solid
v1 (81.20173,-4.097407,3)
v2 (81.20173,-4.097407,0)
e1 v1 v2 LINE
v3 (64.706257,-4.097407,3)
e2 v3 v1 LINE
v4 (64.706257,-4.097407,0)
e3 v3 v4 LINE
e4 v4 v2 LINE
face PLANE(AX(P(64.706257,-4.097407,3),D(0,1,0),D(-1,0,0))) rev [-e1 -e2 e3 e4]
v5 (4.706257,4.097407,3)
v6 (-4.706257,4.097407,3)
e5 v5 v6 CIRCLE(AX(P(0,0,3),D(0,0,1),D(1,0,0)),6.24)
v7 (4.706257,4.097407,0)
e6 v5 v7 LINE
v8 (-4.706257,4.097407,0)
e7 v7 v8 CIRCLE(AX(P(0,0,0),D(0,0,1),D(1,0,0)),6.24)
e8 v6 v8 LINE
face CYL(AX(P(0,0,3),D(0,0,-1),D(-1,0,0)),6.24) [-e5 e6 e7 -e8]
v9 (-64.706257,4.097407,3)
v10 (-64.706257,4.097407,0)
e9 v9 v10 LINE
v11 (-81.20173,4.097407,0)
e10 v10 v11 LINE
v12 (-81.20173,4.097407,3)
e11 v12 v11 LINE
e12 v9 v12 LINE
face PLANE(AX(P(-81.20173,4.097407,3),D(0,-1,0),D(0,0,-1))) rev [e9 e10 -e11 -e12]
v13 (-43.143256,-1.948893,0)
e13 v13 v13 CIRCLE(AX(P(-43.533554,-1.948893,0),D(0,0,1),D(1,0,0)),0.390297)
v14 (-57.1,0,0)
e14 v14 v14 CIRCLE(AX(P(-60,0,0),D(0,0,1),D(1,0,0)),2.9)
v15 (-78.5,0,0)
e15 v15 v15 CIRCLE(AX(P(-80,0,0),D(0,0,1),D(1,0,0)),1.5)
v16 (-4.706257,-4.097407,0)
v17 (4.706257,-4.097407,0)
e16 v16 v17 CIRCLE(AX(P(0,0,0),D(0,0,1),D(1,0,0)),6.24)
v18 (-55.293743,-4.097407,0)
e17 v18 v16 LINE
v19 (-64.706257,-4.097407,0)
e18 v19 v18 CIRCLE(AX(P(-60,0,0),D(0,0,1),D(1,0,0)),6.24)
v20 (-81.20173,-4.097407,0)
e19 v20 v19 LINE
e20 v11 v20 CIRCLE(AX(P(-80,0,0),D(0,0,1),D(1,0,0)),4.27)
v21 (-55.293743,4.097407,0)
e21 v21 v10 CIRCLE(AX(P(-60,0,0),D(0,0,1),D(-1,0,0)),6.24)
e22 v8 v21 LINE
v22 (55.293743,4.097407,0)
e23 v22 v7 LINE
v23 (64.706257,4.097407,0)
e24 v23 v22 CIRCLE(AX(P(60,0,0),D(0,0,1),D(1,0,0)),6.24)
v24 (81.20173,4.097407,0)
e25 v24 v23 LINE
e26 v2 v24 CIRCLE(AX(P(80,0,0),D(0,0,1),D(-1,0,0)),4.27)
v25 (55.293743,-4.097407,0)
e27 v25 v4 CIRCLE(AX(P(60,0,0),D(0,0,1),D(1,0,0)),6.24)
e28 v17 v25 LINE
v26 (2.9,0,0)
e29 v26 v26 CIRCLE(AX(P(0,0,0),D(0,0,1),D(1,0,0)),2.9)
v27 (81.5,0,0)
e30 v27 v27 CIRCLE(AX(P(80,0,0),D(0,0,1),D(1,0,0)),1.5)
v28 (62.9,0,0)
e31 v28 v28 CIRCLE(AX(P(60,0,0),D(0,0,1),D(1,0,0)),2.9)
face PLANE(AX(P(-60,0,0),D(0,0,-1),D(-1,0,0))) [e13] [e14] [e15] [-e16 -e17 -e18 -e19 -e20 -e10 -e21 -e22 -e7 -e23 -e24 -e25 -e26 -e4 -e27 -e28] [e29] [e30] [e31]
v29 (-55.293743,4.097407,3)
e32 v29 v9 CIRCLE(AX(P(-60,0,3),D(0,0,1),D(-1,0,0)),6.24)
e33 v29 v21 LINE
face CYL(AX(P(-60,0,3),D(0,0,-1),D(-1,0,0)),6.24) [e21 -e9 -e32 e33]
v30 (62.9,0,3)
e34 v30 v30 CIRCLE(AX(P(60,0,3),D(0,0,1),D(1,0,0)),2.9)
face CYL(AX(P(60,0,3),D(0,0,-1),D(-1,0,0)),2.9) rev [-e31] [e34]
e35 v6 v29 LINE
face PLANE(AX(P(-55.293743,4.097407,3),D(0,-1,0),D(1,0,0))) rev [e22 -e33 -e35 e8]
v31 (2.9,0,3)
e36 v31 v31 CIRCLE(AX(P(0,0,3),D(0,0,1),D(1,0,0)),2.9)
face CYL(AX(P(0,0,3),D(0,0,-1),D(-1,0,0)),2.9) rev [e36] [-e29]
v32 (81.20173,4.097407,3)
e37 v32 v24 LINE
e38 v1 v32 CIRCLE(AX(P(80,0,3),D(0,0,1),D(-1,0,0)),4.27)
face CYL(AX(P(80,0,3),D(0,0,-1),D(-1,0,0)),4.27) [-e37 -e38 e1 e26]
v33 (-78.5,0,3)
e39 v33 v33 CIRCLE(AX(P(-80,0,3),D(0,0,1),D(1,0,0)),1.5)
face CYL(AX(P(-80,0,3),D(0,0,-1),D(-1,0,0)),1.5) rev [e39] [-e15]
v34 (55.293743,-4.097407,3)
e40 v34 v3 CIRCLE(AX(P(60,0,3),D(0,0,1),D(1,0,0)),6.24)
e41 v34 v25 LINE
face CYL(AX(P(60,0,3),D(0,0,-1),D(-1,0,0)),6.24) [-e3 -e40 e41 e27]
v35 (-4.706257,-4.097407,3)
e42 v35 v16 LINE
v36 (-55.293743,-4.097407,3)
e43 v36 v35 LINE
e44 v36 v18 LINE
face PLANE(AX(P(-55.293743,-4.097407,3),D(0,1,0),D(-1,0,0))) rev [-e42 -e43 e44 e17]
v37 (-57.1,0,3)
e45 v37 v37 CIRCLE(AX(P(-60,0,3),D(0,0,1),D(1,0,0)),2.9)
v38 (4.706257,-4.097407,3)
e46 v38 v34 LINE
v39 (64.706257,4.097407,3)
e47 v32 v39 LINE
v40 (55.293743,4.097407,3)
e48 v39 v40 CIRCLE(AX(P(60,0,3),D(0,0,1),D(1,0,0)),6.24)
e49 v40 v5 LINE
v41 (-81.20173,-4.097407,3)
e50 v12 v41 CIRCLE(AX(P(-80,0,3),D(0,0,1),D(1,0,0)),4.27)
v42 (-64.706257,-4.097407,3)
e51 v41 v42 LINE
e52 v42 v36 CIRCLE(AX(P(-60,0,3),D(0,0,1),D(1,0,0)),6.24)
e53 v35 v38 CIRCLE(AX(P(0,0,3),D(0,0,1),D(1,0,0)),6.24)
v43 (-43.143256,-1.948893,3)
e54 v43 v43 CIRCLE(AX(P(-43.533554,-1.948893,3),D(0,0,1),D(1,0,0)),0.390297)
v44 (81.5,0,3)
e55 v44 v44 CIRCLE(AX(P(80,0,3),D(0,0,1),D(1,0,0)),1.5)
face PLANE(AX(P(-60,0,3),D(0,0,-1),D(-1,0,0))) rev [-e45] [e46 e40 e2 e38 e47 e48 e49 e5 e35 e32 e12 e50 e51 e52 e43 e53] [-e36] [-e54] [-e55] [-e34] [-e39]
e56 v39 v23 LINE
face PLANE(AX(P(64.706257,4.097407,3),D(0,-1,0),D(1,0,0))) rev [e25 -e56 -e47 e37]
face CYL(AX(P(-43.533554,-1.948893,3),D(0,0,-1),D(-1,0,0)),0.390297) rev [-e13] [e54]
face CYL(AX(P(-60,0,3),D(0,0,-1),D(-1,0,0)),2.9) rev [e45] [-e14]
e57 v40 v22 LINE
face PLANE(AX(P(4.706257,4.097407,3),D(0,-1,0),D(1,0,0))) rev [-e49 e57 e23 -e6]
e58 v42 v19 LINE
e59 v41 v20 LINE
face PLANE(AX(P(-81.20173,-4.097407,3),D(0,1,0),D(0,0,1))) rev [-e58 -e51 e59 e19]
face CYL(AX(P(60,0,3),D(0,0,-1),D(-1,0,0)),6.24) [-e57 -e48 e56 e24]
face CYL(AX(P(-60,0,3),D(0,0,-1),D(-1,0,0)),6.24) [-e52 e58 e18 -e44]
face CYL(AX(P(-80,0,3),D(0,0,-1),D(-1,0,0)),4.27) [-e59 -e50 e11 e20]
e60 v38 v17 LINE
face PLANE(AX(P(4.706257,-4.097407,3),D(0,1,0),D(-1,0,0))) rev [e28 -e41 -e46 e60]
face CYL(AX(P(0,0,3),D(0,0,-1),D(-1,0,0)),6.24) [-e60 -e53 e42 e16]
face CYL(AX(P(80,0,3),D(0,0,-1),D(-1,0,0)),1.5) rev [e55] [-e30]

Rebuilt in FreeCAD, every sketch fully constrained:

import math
import FreeCAD as App
import Part
import Sketcher
from FreeCAD import Vector

doc = App.newDocument("Part")
body = doc.addObject("PartDesign::Body", "Body")

sketch1 = doc.addObject("Sketcher::SketchObject", "Sketch")
body.addObject(sketch1)
sketch1.AttachmentSupport = (doc.XY_Plane, [""])
sketch1.MapMode = "FlatFace"
sketch1.addGeometry(Part.LineSegment(Vector(-64.71, 4.1, 0), Vector(-81.2, 4.1, 0)), False)
sketch1.addGeometry(Part.ArcOfCircle(Part.Circle(Vector(-80, 0, 0), Vector(0, 0, 1), 4.27), math.radians(106), math.radians(254)), False)
sketch1.addGeometry(Part.LineSegment(Vector(-81.2, -4.1, 0), Vector(-64.71, -4.1, 0)), False)
sketch1.addGeometry(Part.ArcOfCircle(Part.Circle(Vector(-60, 0, 0), Vector(0, 0, 1), 6.24), math.radians(-139), math.radians(-41)), False)
sketch1.addGeometry(Part.LineSegment(Vector(-55.29, -4.1, 0), Vector(-4.71, -4.1, 0)), False)
sketch1.addGeometry(Part.ArcOfCircle(Part.Circle(Vector(0, 0, 0), Vector(0, 0, 1), 6.24), math.radians(-139), math.radians(-41)), False)
sketch1.addGeometry(Part.LineSegment(Vector(4.71, -4.1, 0), Vector(55.29, -4.1, 0)), False)
sketch1.addGeometry(Part.ArcOfCircle(Part.Circle(Vector(60, 0, 0), Vector(0, 0, 1), 6.24), math.radians(-139), math.radians(-41)), False)
sketch1.addGeometry(Part.LineSegment(Vector(64.71, -4.1, 0), Vector(81.2, -4.1, 0)), False)
sketch1.addGeometry(Part.ArcOfCircle(Part.Circle(Vector(80, 0, 0), Vector(0, 0, 1), 4.27), math.radians(-74), math.radians(74)), False)
sketch1.addGeometry(Part.LineSegment(Vector(81.2, 4.1, 0), Vector(64.71, 4.1, 0)), False)
sketch1.addGeometry(Part.ArcOfCircle(Part.Circle(Vector(60, 0, 0), Vector(0, 0, 1), 6.24), math.radians(41), math.radians(139)), False)
sketch1.addGeometry(Part.LineSegment(Vector(55.29, 4.1, 0), Vector(4.71, 4.1, 0)), False)
sketch1.addGeometry(Part.ArcOfCircle(Part.Circle(Vector(0, 0, 0), Vector(0, 0, 1), 6.24), math.radians(41), math.radians(139)), False)
sketch1.addGeometry(Part.LineSegment(Vector(-4.71, 4.1, 0), Vector(-55.29, 4.1, 0)), False)
sketch1.addGeometry(Part.ArcOfCircle(Part.Circle(Vector(-60, 0, 0), Vector(0, 0, 1), 6.24), math.radians(41), math.radians(139)), False)
sketch1.addGeometry(Part.Circle(Vector(-43.53, -1.95, 0), Vector(0, 0, 1), 0.39), False)
sketch1.addGeometry(Part.Circle(Vector(80, 0, 0), Vector(0, 0, 1), 1.5), False)
sketch1.addGeometry(Part.Circle(Vector(60, 0, 0), Vector(0, 0, 1), 2.9), False)
sketch1.addGeometry(Part.Circle(Vector(0, 0, 0), Vector(0, 0, 1), 2.9), False)
sketch1.addGeometry(Part.Circle(Vector(-60, 0, 0), Vector(0, 0, 1), 2.9), False)
sketch1.addGeometry(Part.Circle(Vector(-80, 0, 0), Vector(0, 0, 1), 1.5), False)
sketch1.addConstraint(Sketcher.Constraint("Coincident", 0, 2, 1, 1))
sketch1.addConstraint(Sketcher.Constraint("Coincident", 1, 2, 2, 1))
sketch1.addConstraint(Sketcher.Constraint("Coincident", 2, 2, 3, 1))
sketch1.addConstraint(Sketcher.Constraint("Coincident", 3, 2, 4, 1))
sketch1.addConstraint(Sketcher.Constraint("Coincident", 4, 2, 5, 1))
sketch1.addConstraint(Sketcher.Constraint("Coincident", 5, 2, 6, 1))
sketch1.addConstraint(Sketcher.Constraint("Coincident", 6, 2, 7, 1))
sketch1.addConstraint(Sketcher.Constraint("Coincident", 7, 2, 8, 1))
sketch1.addConstraint(Sketcher.Constraint("Coincident", 8, 2, 9, 1))
sketch1.addConstraint(Sketcher.Constraint("Coincident", 9, 2, 10, 1))
sketch1.addConstraint(Sketcher.Constraint("Coincident", 10, 2, 11, 1))
sketch1.addConstraint(Sketcher.Constraint("Coincident", 11, 2, 12, 1))
sketch1.addConstraint(Sketcher.Constraint("Coincident", 12, 2, 13, 1))
sketch1.addConstraint(Sketcher.Constraint("Coincident", 13, 2, 14, 1))
sketch1.addConstraint(Sketcher.Constraint("Coincident", 14, 2, 15, 1))
sketch1.addConstraint(Sketcher.Constraint("Coincident", 15, 2, 0, 1))
sketch1.addConstraint(Sketcher.Constraint("Horizontal", 0))
sketch1.addConstraint(Sketcher.Constraint("Horizontal", 2))
sketch1.addConstraint(Sketcher.Constraint("Horizontal", 4))
sketch1.addConstraint(Sketcher.Constraint("Horizontal", 6))
sketch1.addConstraint(Sketcher.Constraint("Horizontal", 8))
sketch1.addConstraint(Sketcher.Constraint("Horizontal", 10))
sketch1.addConstraint(Sketcher.Constraint("Horizontal", 12))
sketch1.addConstraint(Sketcher.Constraint("Horizontal", 14))
sketch1.addConstraint(Sketcher.Constraint("Coincident", 5, 3, -1, 1))
sketch1.addConstraint(Sketcher.Constraint("Coincident", 13, 3, -1, 1))
sketch1.addConstraint(Sketcher.Constraint("Coincident", 19, 3, -1, 1))
sketch1.addConstraint(Sketcher.Constraint("Coincident", 11, 3, 7, 3))
sketch1.addConstraint(Sketcher.Constraint("Coincident", 15, 3, 3, 3))
sketch1.addConstraint(Sketcher.Constraint("Coincident", 17, 3, 9, 3))
sketch1.addConstraint(Sketcher.Constraint("Coincident", 18, 3, 7, 3))
sketch1.addConstraint(Sketcher.Constraint("Coincident", 20, 3, 3, 3))
sketch1.addConstraint(Sketcher.Constraint("Coincident", 21, 3, 1, 3))
sketch1.addConstraint(Sketcher.Constraint("Equal", 3, 5))
sketch1.addConstraint(Sketcher.Constraint("Equal", 5, 7))
sketch1.addConstraint(Sketcher.Constraint("Equal", 1, 9))
sketch1.addConstraint(Sketcher.Constraint("Equal", 7, 11))
sketch1.addConstraint(Sketcher.Constraint("Equal", 11, 13))
sketch1.addConstraint(Sketcher.Constraint("Equal", 13, 15))
sketch1.addConstraint(Sketcher.Constraint("Equal", 18, 19))
sketch1.addConstraint(Sketcher.Constraint("Equal", 19, 20))
sketch1.addConstraint(Sketcher.Constraint("Equal", 17, 21))
sketch1.addConstraint(Sketcher.Constraint("Symmetric", 3, 3, 7, 3, -1, 1))
sketch1.addConstraint(Sketcher.Constraint("Symmetric", 1, 3, 9, 3, -1, 1))
sketch1.addConstraint(Sketcher.Constraint("Symmetric", 3, 2, 6, 2, -2))
sketch1.addConstraint(Sketcher.Constraint("Symmetric", 1, 2, 8, 2, -2))
sketch1.addConstraint(Sketcher.Constraint("Horizontal", 2, 2, 3, 2))
sketch1.addConstraint(Sketcher.Constraint("Horizontal", 0, 2, 9, 2))
sketch1.addConstraint(Sketcher.Constraint("Horizontal", 10, 2, 11, 2))
sketch1.addConstraint(Sketcher.Constraint("Horizontal", 12, 2, 13, 2))
sketch1.addConstraint(Sketcher.Constraint("Vertical", 0, 2, 1, 2))
sketch1.addConstraint(Sketcher.Constraint("Diameter", 17, 3.0))
sketch1.addConstraint(Sketcher.Constraint("Diameter", 18, 5.8))
sketch1.addConstraint(Sketcher.Constraint("Radius", 1, 4.27))
sketch1.addConstraint(Sketcher.Constraint("Radius", 3, 6.24))
sketch1.addConstraint(Sketcher.Constraint("DistanceX", 1, 3, -1, 1, 80.0))
sketch1.addConstraint(Sketcher.Constraint("DistanceX", 3, 3, -1, 1, 60.0))
sketch1.addConstraint(Sketcher.Constraint("Diameter", 16, 0.780595))
sketch1.addConstraint(Sketcher.Constraint("DistanceX", 0, 2, 0, 1, 16.495473))
sketch1.addConstraint(Sketcher.Constraint("DistanceX", 3, 2, 16, 3, 11.760189))
sketch1.addConstraint(Sketcher.Constraint("DistanceY", 16, 3, -1, 1, 1.948893))
pad1 = doc.addObject("PartDesign::Pad", "Pad")
body.addObject(pad1)
pad1.Profile = sketch1
pad1.Length = 3

doc.recompute()
